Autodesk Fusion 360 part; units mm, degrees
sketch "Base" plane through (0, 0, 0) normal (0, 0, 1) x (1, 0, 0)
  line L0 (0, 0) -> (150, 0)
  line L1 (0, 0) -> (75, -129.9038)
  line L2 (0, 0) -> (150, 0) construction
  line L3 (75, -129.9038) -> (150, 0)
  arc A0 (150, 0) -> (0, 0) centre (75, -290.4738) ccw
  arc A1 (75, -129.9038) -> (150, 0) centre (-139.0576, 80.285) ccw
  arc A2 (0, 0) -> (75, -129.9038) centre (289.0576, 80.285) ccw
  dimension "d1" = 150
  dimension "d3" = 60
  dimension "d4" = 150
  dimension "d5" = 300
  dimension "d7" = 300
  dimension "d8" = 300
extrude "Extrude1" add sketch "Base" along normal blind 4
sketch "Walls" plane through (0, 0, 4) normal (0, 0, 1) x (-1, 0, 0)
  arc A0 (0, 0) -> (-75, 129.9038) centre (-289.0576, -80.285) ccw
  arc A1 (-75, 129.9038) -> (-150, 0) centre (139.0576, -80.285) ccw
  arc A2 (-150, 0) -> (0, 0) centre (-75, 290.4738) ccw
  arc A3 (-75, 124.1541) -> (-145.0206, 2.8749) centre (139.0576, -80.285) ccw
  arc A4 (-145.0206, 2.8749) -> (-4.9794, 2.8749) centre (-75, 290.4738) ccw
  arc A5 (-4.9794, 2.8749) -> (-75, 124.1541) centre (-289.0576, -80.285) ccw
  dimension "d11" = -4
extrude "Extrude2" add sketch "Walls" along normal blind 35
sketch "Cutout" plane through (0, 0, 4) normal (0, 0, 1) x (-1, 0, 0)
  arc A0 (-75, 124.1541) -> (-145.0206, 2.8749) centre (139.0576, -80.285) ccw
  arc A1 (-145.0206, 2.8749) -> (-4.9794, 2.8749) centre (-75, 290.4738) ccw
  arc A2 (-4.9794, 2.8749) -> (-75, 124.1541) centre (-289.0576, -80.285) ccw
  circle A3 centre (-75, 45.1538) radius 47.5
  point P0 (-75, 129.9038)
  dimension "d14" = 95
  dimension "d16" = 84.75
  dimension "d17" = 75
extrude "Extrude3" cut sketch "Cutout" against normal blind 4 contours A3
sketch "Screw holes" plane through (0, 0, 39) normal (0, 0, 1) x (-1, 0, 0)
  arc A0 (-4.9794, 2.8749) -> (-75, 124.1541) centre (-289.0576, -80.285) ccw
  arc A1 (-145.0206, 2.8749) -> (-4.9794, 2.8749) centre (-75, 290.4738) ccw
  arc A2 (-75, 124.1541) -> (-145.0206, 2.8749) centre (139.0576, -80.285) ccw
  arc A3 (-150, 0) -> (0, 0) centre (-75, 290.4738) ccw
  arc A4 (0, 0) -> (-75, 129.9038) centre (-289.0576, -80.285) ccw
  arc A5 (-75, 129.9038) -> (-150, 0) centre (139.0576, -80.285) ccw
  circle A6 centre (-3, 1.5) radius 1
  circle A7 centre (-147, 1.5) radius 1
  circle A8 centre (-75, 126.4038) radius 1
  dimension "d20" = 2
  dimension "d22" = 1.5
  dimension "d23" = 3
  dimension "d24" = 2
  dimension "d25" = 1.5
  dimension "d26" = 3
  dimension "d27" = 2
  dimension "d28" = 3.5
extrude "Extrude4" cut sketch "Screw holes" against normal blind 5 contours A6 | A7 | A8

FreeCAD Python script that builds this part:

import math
import FreeCAD as App
import Part
import Sketcher
Q = App.Units.Quantity

doc = App.newDocument("Part")
body = doc.addObject("PartDesign::Body", "Body")

sketch1 = body.newObject("Sketcher::SketchObject", "Sketch")
sketch1.AttachmentSupport = (doc.getObject("XY_Plane"), [""])
sketch1.MapMode = "FlatFace"
sketch1.addGeometry([
    Part.ArcOfCircle(Part.Circle(App.Vector(75, -290, 0), App.Vector(0, 0, 1), 300), math.radians(76), math.radians(104)),
    Part.ArcOfCircle(Part.Circle(App.Vector(289, 80, 0), App.Vector(0, 0, 1), 300), math.radians(-164), math.radians(-136)),
    Part.ArcOfCircle(Part.Circle(App.Vector(-139, 80, 0), App.Vector(0, 0, 1), 300), math.radians(-44), math.radians(-16)),
], False)
sketch1.addConstraint([
    Sketcher.Constraint("Coincident", 0, 2, 1, 1),
    Sketcher.Constraint("Coincident", 1, 2, 2, 1),
    Sketcher.Constraint("Coincident", 2, 2, 0, 1),
    Sketcher.Constraint("Coincident", 0, 2, -1, 1),
    Sketcher.Constraint("Equal", 0, 1),
    Sketcher.Constraint("Equal", 1, 2),
    Sketcher.Constraint("Horizontal", 1, 3, 2, 3),
    Sketcher.Constraint("Vertical", 0, 3, 1, 2),
    Sketcher.Constraint("Radius", 0, Q("300 mm")),
    Sketcher.Constraint("DistanceX", -1, 1, 2, 2, Q("150 mm")),
    Sketcher.Constraint("DistanceY", 0, 3, 1, 2, Q("160.57 mm")),
])
pad1 = body.newObject("PartDesign::Pad", "Pad")
pad1.Profile = sketch1
pad1.Length = 4

sketch2 = body.newObject("Sketcher::SketchObject", "Sketch001")
sketch2.AttachmentSupport = (doc.getObject("XY_Plane"), [""])
sketch2.MapMode = "FlatFace"
sketch2.AttachmentOffset = App.Placement(App.Vector(0, 0, 4), App.Rotation())
sketch2.addGeometry([
    Part.ArcOfCircle(Part.Circle(App.Vector(75, -290, 0), App.Vector(0, 0, 1), 300), math.radians(76), math.radians(104)),
    Part.ArcOfCircle(Part.Circle(App.Vector(289, 80, 0), App.Vector(0, 0, 1), 300), math.radians(-164), math.radians(-136)),
    Part.ArcOfCircle(Part.Circle(App.Vector(-139, 80, 0), App.Vector(0, 0, 1), 300), math.radians(-44), math.radians(-16)),
    Part.ArcOfCircle(Part.Circle(App.Vector(-139, 80, 0), App.Vector(0, 0, 1), 296), math.radians(-44), math.radians(-16)),
    Part.ArcOfCircle(Part.Circle(App.Vector(289, 80, 0), App.Vector(0, 0, 1), 296), math.radians(-164), math.radians(-136)),
    Part.ArcOfCircle(Part.Circle(App.Vector(75, -290, 0), App.Vector(0, 0, 1), 296), math.radians(76), math.radians(104)),
], False)
sketch2.addConstraint([
    Sketcher.Constraint("Coincident", 0, 2, 1, 1),
    Sketcher.Constraint("Coincident", 1, 2, 2, 1),
    Sketcher.Constraint("Coincident", 2, 2, 0, 1),
    Sketcher.Constraint("Coincident", 3, 1, 4, 2),
    Sketcher.Constraint("Coincident", 4, 1, 5, 2),
    Sketcher.Constraint("Coincident", 5, 1, 3, 2),
    Sketcher.Constraint("Coincident", 0, 2, -1, 1),
    Sketcher.Constraint("Coincident", 3, 3, 2, 3),
    Sketcher.Constraint("Coincident", 4, 3, 1, 3),
    Sketcher.Constraint("Coincident", 5, 3, 0, 3),
    Sketcher.Constraint("Equal", 0, 1),
    Sketcher.Constraint("Equal", 1, 2),
    Sketcher.Constraint("Equal", 3, 4),
    Sketcher.Constraint("Equal", 4, 5),
    Sketcher.Constraint("Horizontal", 1, 3, 2, 3),
    Sketcher.Constraint("Vertical", 5, 3, 1, 2),
    Sketcher.Constraint("Radius", 0, Q("300 mm")),
    Sketcher.Constraint("Radius", 3, Q("296 mm")),
    Sketcher.Constraint("DistanceX", -1, 1, 0, 3, Q("75 mm")),
    Sketcher.Constraint("DistanceY", -1, 1, 1, 3, Q("80.285 mm")),
])
pad2 = body.newObject("PartDesign::Pad", "Pad001")
pad2.Profile = sketch2
pad2.Length = 35

sketch3 = body.newObject("Sketcher::SketchObject", "Sketch002")
sketch3.AttachmentSupport = (doc.getObject("XY_Plane"), [""])
sketch3.MapMode = "FlatFace"
sketch3.AttachmentOffset = App.Placement(App.Vector(0, 0, 4), App.Rotation())
sketch3.addGeometry(Part.Circle(App.Vector(75, -45, 0), App.Vector(0, 0, 1), 48), False)
sketch3.addConstraint([
    Sketcher.Constraint("Diameter", 0, Q("95 mm")),
    Sketcher.Constraint("DistanceX", -1, 1, 0, 3, Q("75 mm")),
    Sketcher.Constraint("DistanceY", 0, 3, -1, 1, Q("45.1538 mm")),
])
pocket1 = body.newObject("PartDesign::Pocket", "Pocket")
pocket1.Profile = sketch3
pocket1.Length = 4

sketch4 = body.newObject("Sketcher::SketchObject", "Sketch003")
sketch4.AttachmentSupport = (doc.getObject("XY_Plane"), [""])
sketch4.MapMode = "FlatFace"
sketch4.AttachmentOffset = App.Placement(App.Vector(0, 0, 39), App.Rotation())
sketch4.addGeometry([
    Part.Circle(App.Vector(3, -1.5, 0), App.Vector(0, 0, 1), 1),
    Part.Circle(App.Vector(147, -1.5, 0), App.Vector(0, 0, 1), 1),
    Part.Circle(App.Vector(75, -126.4, 0), App.Vector(0, 0, 1), 1),
], False)
sketch4.addConstraint([
    Sketcher.Constraint("Equal", 0, 1),
    Sketcher.Constraint("Equal", 1, 2),
    Sketcher.Constraint("Horizontal", 0, 3, 1, 3),
    Sketcher.Constraint("Diameter", 0, Q("2 mm")),
    Sketcher.Constraint("DistanceX", -1, 1, 0, 3, Q("3 mm")),
    Sketcher.Constraint("DistanceY", 0, 3, -1, 1, Q("1.5 mm")),
    Sketcher.Constraint("DistanceX", -1, 1, 1, 3, Q("147 mm")),
    Sketcher.Constraint("DistanceX", -1, 1, 2, 3, Q("75 mm")),
    Sketcher.Constraint("DistanceY", 2, 3, -1, 1, Q("126.4038 mm")),
])
pocket2 = body.newObject("PartDesign::Pocket", "Pocket001")
pocket2.Profile = sketch4
pocket2.Length = 5

doc.recompute()
